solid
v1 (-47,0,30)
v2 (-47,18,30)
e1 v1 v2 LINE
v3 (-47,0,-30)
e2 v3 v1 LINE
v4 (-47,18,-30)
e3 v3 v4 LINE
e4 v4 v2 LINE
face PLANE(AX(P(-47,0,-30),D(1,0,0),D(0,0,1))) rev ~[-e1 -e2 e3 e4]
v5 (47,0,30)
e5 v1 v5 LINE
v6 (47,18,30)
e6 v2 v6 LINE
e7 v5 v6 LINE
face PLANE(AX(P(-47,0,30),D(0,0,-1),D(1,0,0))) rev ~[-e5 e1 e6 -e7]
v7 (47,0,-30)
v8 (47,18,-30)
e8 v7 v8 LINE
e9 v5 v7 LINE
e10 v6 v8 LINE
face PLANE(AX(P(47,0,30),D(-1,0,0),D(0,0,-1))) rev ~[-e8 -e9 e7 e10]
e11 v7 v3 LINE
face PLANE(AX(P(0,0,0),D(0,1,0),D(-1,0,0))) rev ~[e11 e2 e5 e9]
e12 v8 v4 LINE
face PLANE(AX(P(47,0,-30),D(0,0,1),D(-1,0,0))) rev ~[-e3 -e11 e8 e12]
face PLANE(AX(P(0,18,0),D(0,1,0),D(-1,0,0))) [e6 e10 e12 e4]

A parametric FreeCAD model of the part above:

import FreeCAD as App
import Part
import Sketcher

V = App.Vector

doc = App.newDocument("Part")
body = doc.addObject("PartDesign::Body", "Body")

# Sketch on XZ plane
sketch1 = doc.addObject("Sketcher::SketchObject", "Sketch")
body.addObject(sketch1)
sketch1.AttachmentSupport = (doc.XZ_Plane, [""])
sketch1.MapMode = "FlatFace"
sketch1.addGeometry([
    Part.LineSegment(V(-47, -30, 0), V(-47, 30, 0)),
    Part.LineSegment(V(-47, 30, 0), V(47, 30, 0)),
    Part.LineSegment(V(47, 30, 0), V(47, -30, 0)),
    Part.LineSegment(V(47, -30, 0), V(-47, -30, 0)),
], False)
sketch1.addConstraint([
    Sketcher.Constraint("Coincident", 0, 2, 1, 1),
    Sketcher.Constraint("Coincident", 1, 2, 2, 1),
    Sketcher.Constraint("Coincident", 2, 2, 3, 1),
    Sketcher.Constraint("Coincident", 3, 2, 0, 1),
    Sketcher.Constraint("Vertical", 0),
    Sketcher.Constraint("Horizontal", 1),
    Sketcher.Constraint("Vertical", 2),
    Sketcher.Constraint("Horizontal", 3),
    Sketcher.Constraint("Symmetric", 0, 2, 2, 2, -1, 1),
    Sketcher.Constraint("DistanceX", 1, 1, 1, 2, 94.0),
    Sketcher.Constraint("DistanceY", 0, 1, 0, 2, 60.0),
])
pad1 = doc.addObject("PartDesign::Pad", "Pad")
body.addObject(pad1)
pad1.Profile = sketch1
pad1.Length = 18
pad1.Reversed = True

doc.recompute()
